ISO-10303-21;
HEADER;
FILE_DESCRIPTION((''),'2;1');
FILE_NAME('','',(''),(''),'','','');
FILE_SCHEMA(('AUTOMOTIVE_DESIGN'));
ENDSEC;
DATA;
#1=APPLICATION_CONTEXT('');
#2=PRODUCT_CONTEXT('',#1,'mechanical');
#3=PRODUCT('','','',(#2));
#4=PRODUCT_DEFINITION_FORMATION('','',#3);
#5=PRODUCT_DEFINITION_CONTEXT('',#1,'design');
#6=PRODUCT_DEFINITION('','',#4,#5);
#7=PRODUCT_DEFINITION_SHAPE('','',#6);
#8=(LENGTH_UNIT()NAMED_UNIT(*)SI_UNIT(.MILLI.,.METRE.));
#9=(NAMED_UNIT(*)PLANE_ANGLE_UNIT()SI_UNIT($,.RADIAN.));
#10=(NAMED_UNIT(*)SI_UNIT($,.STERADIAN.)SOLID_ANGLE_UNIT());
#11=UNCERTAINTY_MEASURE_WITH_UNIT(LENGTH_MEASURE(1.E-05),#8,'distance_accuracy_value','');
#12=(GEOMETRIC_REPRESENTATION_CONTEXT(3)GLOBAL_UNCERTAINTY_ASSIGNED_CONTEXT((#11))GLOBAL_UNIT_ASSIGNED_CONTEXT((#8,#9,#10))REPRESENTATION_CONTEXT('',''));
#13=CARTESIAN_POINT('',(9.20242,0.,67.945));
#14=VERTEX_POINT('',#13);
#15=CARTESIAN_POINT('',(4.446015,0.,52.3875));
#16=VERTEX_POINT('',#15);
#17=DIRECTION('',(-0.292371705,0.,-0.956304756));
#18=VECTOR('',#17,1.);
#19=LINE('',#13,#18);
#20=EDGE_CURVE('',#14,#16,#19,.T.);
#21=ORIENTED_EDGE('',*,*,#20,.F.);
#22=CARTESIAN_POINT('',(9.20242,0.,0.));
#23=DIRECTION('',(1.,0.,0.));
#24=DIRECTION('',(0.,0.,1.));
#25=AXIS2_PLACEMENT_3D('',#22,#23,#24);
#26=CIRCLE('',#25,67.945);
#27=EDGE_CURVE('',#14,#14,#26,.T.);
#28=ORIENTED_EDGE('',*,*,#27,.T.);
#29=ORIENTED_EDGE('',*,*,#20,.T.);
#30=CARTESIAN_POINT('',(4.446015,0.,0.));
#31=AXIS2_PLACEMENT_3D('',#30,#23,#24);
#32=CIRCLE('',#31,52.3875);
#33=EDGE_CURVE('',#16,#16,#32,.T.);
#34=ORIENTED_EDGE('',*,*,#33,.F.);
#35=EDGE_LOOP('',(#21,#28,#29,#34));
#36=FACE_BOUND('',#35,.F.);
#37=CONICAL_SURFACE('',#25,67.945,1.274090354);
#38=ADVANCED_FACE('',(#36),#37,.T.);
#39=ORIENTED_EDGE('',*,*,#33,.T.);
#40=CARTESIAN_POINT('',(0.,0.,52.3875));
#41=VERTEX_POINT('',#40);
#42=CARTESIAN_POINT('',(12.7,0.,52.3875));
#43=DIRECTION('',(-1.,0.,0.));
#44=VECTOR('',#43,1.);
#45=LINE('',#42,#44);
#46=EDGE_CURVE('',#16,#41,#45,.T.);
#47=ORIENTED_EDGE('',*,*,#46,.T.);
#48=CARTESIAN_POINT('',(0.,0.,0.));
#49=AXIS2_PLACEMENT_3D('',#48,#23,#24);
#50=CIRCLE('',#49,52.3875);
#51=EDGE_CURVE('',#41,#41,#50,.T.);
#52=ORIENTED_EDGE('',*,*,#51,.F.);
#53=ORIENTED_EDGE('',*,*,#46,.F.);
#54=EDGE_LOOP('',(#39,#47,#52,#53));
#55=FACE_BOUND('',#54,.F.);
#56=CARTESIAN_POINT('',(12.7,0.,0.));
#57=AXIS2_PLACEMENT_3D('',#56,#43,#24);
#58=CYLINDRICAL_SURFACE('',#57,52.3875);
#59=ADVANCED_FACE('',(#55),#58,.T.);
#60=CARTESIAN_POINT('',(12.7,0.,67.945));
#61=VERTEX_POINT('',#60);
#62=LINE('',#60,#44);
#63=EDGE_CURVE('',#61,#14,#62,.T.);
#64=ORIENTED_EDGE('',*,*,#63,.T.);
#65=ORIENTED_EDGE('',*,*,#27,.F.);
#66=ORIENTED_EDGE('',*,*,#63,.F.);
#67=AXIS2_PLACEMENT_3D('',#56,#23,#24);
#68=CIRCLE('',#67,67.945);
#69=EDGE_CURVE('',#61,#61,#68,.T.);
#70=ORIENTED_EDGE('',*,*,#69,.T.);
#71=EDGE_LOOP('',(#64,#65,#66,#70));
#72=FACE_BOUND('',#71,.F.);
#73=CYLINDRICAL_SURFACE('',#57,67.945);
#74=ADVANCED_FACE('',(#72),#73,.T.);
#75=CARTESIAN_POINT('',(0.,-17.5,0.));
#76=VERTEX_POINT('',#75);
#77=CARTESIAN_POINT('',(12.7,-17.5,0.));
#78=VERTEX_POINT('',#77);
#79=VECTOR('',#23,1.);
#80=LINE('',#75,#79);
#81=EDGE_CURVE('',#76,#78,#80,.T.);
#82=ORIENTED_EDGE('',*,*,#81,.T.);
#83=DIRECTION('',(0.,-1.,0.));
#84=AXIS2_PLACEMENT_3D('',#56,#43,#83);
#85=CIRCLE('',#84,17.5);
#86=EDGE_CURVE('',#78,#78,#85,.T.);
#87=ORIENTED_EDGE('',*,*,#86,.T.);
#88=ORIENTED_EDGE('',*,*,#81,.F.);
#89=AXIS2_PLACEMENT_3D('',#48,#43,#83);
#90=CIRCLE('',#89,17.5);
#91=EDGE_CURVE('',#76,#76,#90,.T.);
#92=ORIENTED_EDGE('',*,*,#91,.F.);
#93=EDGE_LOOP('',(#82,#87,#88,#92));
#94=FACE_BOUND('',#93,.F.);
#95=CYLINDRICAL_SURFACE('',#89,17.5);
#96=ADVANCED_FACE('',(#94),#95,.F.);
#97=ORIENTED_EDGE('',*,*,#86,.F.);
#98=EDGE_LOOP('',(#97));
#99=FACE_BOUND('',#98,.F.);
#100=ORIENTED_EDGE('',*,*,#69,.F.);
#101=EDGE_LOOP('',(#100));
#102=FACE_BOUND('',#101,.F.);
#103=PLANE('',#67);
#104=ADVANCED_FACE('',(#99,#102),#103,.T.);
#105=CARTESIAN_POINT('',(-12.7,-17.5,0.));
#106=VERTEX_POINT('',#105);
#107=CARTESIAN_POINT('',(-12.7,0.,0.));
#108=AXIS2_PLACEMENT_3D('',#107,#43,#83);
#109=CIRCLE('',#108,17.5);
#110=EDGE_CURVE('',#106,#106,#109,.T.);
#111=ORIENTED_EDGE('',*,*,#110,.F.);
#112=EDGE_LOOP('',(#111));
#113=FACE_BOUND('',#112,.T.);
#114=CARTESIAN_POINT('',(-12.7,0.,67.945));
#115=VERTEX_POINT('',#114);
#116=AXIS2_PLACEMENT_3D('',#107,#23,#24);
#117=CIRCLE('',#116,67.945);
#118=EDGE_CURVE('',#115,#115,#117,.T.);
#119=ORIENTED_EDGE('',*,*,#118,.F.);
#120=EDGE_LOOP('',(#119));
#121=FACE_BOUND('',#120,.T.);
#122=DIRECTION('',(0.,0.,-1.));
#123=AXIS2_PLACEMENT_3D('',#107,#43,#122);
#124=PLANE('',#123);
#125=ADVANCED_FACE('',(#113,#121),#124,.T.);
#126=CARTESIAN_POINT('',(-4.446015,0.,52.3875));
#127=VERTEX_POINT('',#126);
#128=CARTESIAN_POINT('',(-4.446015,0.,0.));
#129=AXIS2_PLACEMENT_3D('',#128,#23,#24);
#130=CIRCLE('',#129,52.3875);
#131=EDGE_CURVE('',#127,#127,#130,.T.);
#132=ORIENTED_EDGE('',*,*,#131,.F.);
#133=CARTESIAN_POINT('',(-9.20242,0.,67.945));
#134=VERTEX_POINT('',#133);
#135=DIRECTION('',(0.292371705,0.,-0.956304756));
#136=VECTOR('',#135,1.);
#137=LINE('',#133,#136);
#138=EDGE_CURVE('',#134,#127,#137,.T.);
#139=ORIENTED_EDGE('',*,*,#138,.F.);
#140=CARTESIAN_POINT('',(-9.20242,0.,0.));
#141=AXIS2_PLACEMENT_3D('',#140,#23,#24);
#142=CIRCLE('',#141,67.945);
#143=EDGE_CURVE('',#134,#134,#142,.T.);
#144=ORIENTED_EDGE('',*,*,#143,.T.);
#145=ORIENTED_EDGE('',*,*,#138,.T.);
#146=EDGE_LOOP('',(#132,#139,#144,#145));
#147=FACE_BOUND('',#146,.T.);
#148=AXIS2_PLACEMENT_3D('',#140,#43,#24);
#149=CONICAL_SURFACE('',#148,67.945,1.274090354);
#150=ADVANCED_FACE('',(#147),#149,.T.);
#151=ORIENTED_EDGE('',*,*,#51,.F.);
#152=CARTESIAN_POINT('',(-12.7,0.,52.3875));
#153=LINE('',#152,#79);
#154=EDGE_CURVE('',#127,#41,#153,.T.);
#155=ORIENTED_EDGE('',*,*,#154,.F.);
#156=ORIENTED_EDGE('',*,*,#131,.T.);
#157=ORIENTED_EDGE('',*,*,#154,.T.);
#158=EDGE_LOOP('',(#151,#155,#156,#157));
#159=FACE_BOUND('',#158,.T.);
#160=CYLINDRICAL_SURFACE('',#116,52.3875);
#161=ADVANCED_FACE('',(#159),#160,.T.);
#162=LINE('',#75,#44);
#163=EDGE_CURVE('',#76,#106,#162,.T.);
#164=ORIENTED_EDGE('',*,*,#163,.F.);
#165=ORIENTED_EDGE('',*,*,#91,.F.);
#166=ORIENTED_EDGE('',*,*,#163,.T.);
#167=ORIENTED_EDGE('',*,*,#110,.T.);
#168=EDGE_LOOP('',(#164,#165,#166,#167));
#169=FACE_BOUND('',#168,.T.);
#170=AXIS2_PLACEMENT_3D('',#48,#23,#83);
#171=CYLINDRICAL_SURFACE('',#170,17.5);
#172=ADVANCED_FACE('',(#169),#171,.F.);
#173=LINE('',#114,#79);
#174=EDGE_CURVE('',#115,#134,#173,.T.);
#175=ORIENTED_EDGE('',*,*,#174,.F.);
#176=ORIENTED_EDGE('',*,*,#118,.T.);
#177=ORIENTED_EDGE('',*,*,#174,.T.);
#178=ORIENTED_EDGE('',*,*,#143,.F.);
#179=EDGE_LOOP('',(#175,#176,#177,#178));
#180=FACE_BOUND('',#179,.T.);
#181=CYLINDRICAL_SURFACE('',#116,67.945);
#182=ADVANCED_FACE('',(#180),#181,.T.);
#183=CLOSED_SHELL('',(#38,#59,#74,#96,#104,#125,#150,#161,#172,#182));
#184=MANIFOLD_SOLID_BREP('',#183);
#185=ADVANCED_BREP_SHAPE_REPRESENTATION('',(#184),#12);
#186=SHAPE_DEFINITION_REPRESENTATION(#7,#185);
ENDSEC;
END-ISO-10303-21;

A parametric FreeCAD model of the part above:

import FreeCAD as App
import Part
import Sketcher
from FreeCAD import Vector
Q = App.Units.Quantity


def add_polygon(sketch, points):
    """Adds a closed chain of lines whose ends are joined by coincident constraints."""
    first, n = sketch.GeometryCount, len(points)
    for a, b in zip(points, points[1:] + points[:1]):
        sketch.addGeometry(Part.LineSegment(App.Vector(*a, 0), App.Vector(*b, 0)), False)
    for i in range(n):
        sketch.addConstraint(Sketcher.Constraint("Coincident", first + i, 2, first + (i + 1) % n, 1))

doc = App.newDocument("Part")
params = doc.addObject("Spreadsheet::Sheet", "Params")
for row, (alias, value) in enumerate([
    ("sketch1_width", "0.5 in"),
    ("sketch1_height", "2.675 in"),
    ("sketch1_height2", "2.0625 in"),
    ("revolution_angle", "360 deg"),
    ("pocket1_length", "25 mm"),
], start=1):
    params.set(f"A{row}", alias)
    params.set(f"B{row}", "=" + value)
    params.setAlias(f"B{row}", alias)

body = doc.addObject("PartDesign::Body", "Body")

sketch1 = doc.addObject("Sketcher::SketchObject", "Sketch")
body.addObject(sketch1)
sketch1.AttachmentSupport = (doc.XZ_Plane, [""])
sketch1.MapMode = "FlatFace"
add_polygon(sketch1, [(0, 0), (12.7, 0), (12.7, 67.9), (9.2, 67.9), (4.4, 52.4), (0, 52.4)])
sketch1.addConstraint(Sketcher.Constraint("Horizontal", 0))
sketch1.addConstraint(Sketcher.Constraint("Vertical", 1))
sketch1.addConstraint(Sketcher.Constraint("Horizontal", 2))
sketch1.addConstraint(Sketcher.Constraint("Horizontal", 4))
sketch1.addConstraint(Sketcher.Constraint("Vertical", 5))
sketch1.addConstraint(Sketcher.Constraint("Coincident", 5, 2, -1, 1))
sketch1.addConstraint(Sketcher.Constraint("DistanceX", 0, 1, 0, 2, Q("0.5 in")))
sketch1.addConstraint(Sketcher.Constraint("Angle", 3, Q("-107 deg")))
sketch1.addConstraint(Sketcher.Constraint("DistanceY", 1, 1, 1, 2, Q("2.675 in")))
sketch1.addConstraint(Sketcher.Constraint("DistanceY", 5, 2, 5, 1, Q("2.0625 in")))
sketch1.addConstraint(Sketcher.Constraint("DistanceX", 2, 2, 2, 1, Q("0.1377 in")))
sketch1.setExpression("Constraints[12]", "Params.sketch1_width")
sketch1.setExpression("Constraints[14]", "Params.sketch1_height")
sketch1.setExpression("Constraints[15]", "Params.sketch1_height2")
revolution = doc.addObject("PartDesign::Revolution", "Revolution")
body.addObject(revolution)
revolution.Profile = sketch1
revolution.ReferenceAxis = (sketch1, ["H_Axis"])
revolution.setExpression("Angle", "Params.revolution_angle")

sketch2 = doc.addObject("Sketcher::SketchObject", "Sketch001")
body.addObject(sketch2)
sketch2.AttachmentSupport = (doc.YZ_Plane, [""])
sketch2.MapMode = "FlatFace"
sketch2.addGeometry(Part.Circle(Vector(0, 0, 0), Vector(0, 0, 1), 18), False)
sketch2.addConstraint(Sketcher.Constraint("Coincident", 0, 3, -1, 1))
sketch2.addConstraint(Sketcher.Constraint("Diameter", 0, Q("35 mm")))
pocket1 = doc.addObject("PartDesign::Pocket", "Pocket")
body.addObject(pocket1)
pocket1.Profile = sketch2
pocket1.setExpression("Length", "Params.pocket1_length")
pocket1.Reversed = True
body2 = doc.addObject("PartDesign::Body", "Body001")
doc.recompute()

body2.BaseFeature = body
doc.recompute()

mirroring = doc.addObject("Part::Mirroring", "Mirroring")
mirroring.Source = body
mirroring.Base = Vector(0, 0, 0)
mirroring.Normal = Vector(1, 0, 0)
body3 = doc.addObject("PartDesign::Body", "Body002")
body3.BaseFeature = mirroring
boolean = doc.addObject("PartDesign::Boolean", "Boolean")
body2.addObject(boolean)
boolean.Type = "Fuse"
boolean.addObjects([body3])
doc.recompute()
mirroring.Visibility = False

doc.recompute()
